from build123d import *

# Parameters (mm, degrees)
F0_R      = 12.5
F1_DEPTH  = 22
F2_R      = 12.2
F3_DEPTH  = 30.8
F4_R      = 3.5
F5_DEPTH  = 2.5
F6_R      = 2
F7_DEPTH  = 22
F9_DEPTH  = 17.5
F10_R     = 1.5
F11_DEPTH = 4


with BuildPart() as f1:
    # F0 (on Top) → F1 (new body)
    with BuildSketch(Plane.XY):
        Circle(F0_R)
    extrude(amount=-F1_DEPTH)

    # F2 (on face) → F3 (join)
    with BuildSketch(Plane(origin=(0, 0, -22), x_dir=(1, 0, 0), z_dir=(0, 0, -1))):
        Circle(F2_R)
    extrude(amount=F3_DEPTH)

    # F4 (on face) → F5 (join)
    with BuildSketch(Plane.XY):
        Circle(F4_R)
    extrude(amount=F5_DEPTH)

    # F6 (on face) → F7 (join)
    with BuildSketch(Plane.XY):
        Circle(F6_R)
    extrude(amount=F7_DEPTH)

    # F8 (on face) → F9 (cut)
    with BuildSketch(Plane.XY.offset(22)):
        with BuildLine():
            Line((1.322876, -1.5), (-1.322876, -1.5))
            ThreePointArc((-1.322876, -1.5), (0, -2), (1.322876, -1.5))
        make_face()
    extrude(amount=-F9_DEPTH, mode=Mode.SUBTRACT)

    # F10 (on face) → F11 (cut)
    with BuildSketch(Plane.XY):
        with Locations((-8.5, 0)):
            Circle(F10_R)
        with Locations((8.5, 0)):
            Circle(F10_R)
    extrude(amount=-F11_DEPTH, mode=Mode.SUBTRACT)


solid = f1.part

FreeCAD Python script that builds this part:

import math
import FreeCAD as App
import Part
import Sketcher
from FreeCAD import Vector

doc = App.newDocument("Part")
body = doc.addObject("PartDesign::Body", "Body")

sketch1 = doc.addObject("Sketcher::SketchObject", "Sketch")
body.addObject(sketch1)
sketch1.AttachmentSupport = (doc.XY_Plane, [""])
sketch1.MapMode = "FlatFace"
sketch1.addGeometry(Part.Circle(Vector(0, 0, 0), Vector(0, 0, 1), 12), False)
sketch1.addConstraint(Sketcher.Constraint("Coincident", 0, 3, -1, 1))
sketch1.addConstraint(Sketcher.Constraint("Diameter", 0, 25.0))
pad1 = doc.addObject("PartDesign::Pad", "Pad")
body.addObject(pad1)
pad1.Profile = sketch1
pad1.Length = 22
pad1.Reversed = True

sketch2 = doc.addObject("Sketcher::SketchObject", "Sketch001")
body.addObject(sketch2)
sketch2.AttachmentSupport = (doc.XY_Plane, [""])
sketch2.MapMode = "FlatFace"
sketch2.AttachmentOffset = App.Placement(Vector(0, 0, -22), App.Rotation())
sketch2.addGeometry(Part.Circle(Vector(0, 0, 0), Vector(0, 0, 1), 12), False)
sketch2.addConstraint(Sketcher.Constraint("Coincident", 0, 3, -1, 1))
sketch2.addConstraint(Sketcher.Constraint("Diameter", 0, 24.4))
pad2 = doc.addObject("PartDesign::Pad", "Pad001")
body.addObject(pad2)
pad2.Profile = sketch2
pad2.Length = 30.8
pad2.Reversed = True

sketch3 = doc.addObject("Sketcher::SketchObject", "Sketch002")
body.addObject(sketch3)
sketch3.AttachmentSupport = (doc.XY_Plane, [""])
sketch3.MapMode = "FlatFace"
sketch3.addGeometry(Part.Circle(Vector(0, 0, 0), Vector(0, 0, 1), 3.5), False)
sketch3.addConstraint(Sketcher.Constraint("Coincident", 0, 3, -1, 1))
sketch3.addConstraint(Sketcher.Constraint("Diameter", 0, 7.0))
pad3 = doc.addObject("PartDesign::Pad", "Pad002")
body.addObject(pad3)
pad3.Profile = sketch3
pad3.Length = 2.5

sketch4 = doc.addObject("Sketcher::SketchObject", "Sketch003")
body.addObject(sketch4)
sketch4.AttachmentSupport = (doc.XY_Plane, [""])
sketch4.MapMode = "FlatFace"
sketch4.addGeometry(Part.Circle(Vector(0, 0, 0), Vector(0, 0, 1), 2), False)
sketch4.addConstraint(Sketcher.Constraint("Coincident", 0, 3, -1, 1))
sketch4.addConstraint(Sketcher.Constraint("Diameter", 0, 4.0))
pad4 = doc.addObject("PartDesign::Pad", "Pad003")
body.addObject(pad4)
pad4.Profile = sketch4
pad4.Length = 22

sketch5 = doc.addObject("Sketcher::SketchObject", "Sketch004")
body.addObject(sketch5)
sketch5.AttachmentSupport = (doc.XY_Plane, [""])
sketch5.MapMode = "FlatFace"
sketch5.AttachmentOffset = App.Placement(Vector(0, 0, 22), App.Rotation())
sketch5.addGeometry(Part.LineSegment(Vector(1.3, -1.5, 0), Vector(-1.3, -1.5, 0)), False)
sketch5.addGeometry(Part.ArcOfCircle(Part.Circle(Vector(0, 0, 0), Vector(0, 0, 1), 2), math.radians(-131), math.radians(-49)), False)
sketch5.addConstraint(Sketcher.Constraint("Coincident", 0, 1, 1, 2))
sketch5.addConstraint(Sketcher.Constraint("Coincident", 1, 1, 0, 2))
sketch5.addConstraint(Sketcher.Constraint("Horizontal", 0))
sketch5.addConstraint(Sketcher.Constraint("Coincident", 1, 3, -1, 1))
sketch5.addConstraint(Sketcher.Constraint("Radius", 1, 2.000001))
sketch5.addConstraint(Sketcher.Constraint("DistanceY", 0, 1, -1, 1, 1.5))
pocket1 = doc.addObject("PartDesign::Pocket", "Pocket")
body.addObject(pocket1)
pocket1.Profile = sketch5
pocket1.Length = 17.5

sketch6 = doc.addObject("Sketcher::SketchObject", "Sketch005")
body.addObject(sketch6)
sketch6.AttachmentSupport = (doc.XY_Plane, [""])
sketch6.MapMode = "FlatFace"
sketch6.addGeometry(Part.Circle(Vector(-8.5, 0, 0), Vector(0, 0, 1), 1.5), False)
sketch6.addGeometry(Part.Circle(Vector(8.5, 0, 0), Vector(0, 0, 1), 1.5), False)
sketch6.addConstraint(Sketcher.Constraint("Equal", 0, 1))
sketch6.addConstraint(Sketcher.Constraint("Symmetric", 0, 3, 1, 3, -1, 1))
sketch6.addConstraint(Sketcher.Constraint("PointOnObject", 0, 3, -1))
sketch6.addConstraint(Sketcher.Constraint("Diameter", 0, 3.0))
sketch6.addConstraint(Sketcher.Constraint("DistanceX", 0, 3, 1, 3, 17.0))
pocket2 = doc.addObject("PartDesign::Pocket", "Pocket001")
body.addObject(pocket2)
pocket2.Profile = sketch6
pocket2.Length = 4

doc.recompute()
